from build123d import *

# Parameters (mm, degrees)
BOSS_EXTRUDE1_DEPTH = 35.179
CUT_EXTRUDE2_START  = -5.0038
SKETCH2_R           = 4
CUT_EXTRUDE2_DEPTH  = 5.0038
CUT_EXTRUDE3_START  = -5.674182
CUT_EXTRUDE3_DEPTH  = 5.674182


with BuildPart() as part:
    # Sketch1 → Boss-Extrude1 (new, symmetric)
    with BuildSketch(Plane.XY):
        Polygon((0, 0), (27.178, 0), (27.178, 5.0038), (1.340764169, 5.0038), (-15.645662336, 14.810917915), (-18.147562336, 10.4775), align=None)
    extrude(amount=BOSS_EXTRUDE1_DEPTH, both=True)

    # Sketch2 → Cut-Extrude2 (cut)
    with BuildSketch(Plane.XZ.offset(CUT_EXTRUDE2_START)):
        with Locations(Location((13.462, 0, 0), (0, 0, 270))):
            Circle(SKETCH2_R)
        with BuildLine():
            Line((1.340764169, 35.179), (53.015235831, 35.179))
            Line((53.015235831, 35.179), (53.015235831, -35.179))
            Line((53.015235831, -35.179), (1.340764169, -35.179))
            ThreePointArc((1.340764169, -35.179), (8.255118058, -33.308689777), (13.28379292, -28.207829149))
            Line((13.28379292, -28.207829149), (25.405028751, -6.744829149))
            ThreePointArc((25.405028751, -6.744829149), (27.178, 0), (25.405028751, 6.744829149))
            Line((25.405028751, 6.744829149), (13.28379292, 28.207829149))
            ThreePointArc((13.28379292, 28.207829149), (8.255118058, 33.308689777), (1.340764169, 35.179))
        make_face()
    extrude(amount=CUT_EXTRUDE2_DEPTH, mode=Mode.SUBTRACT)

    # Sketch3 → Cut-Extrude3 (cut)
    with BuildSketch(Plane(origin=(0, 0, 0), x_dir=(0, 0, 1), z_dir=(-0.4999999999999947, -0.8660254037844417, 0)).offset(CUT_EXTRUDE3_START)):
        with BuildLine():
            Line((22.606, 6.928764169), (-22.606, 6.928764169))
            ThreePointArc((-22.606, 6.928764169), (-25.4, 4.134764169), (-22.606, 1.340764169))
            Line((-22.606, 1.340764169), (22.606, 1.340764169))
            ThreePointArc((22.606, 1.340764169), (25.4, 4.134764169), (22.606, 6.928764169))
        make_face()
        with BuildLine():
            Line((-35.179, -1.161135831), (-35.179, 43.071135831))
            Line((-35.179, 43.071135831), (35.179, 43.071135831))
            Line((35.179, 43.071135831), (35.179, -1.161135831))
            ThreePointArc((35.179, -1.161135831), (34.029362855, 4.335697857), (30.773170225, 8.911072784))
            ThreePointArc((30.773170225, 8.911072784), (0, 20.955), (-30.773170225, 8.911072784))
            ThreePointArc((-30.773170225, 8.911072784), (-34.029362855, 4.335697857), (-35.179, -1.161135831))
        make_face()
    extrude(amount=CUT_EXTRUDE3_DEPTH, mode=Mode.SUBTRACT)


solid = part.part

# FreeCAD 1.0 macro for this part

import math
import FreeCAD as App
import Part
import Sketcher

V = App.Vector
Q = App.Units.Quantity

doc = App.newDocument("Part")
body = doc.addObject("PartDesign::Body", "Body")

# Sketch on XY plane
sketch1 = body.newObject("Sketcher::SketchObject", "Sketch")
sketch1.AttachmentSupport = (doc.getObject("XY_Plane"), [""])
sketch1.MapMode = "FlatFace"
sketch1.addGeometry(Part.LineSegment(V(0, 0, 0), V(27.178, 0, 0)), False)
sketch1.addGeometry(Part.LineSegment(V(27.178, 0, 0), V(27.178, 5.0038, 0)), False)
sketch1.addGeometry(Part.LineSegment(V(27.178, 5.0038, 0), V(1.340764, 5.0038, 0)), False)
sketch1.addGeometry(Part.LineSegment(V(1.340764, 5.0038, 0), V(-15.645662, 14.810918, 0)), False)
sketch1.addGeometry(Part.LineSegment(V(-15.645662, 14.810918, 0), V(-18.147562, 10.4775, 0)), False)
sketch1.addGeometry(Part.LineSegment(V(-18.147562, 10.4775, 0), V(0, 0, 0)), False)
sketch1.addConstraint(Sketcher.Constraint("Coincident", 0, 2, 1, 1))
sketch1.addConstraint(Sketcher.Constraint("Coincident", 1, 2, 2, 1))
sketch1.addConstraint(Sketcher.Constraint("Coincident", 2, 2, 3, 1))
sketch1.addConstraint(Sketcher.Constraint("Coincident", 3, 2, 4, 1))
sketch1.addConstraint(Sketcher.Constraint("Coincident", 4, 2, 5, 1))
sketch1.addConstraint(Sketcher.Constraint("Coincident", 5, 2, 0, 1))
sketch1.addConstraint(Sketcher.Constraint("Horizontal", 0))
sketch1.addConstraint(Sketcher.Constraint("Vertical", 1))
sketch1.addConstraint(Sketcher.Constraint("Horizontal", 2))
sketch1.addConstraint(Sketcher.Constraint("Coincident", 5, 2, -1, 1))
sketch1.addConstraint(Sketcher.Constraint("Perpendicular", 3, 4))
sketch1.addConstraint(Sketcher.Constraint("Perpendicular", 4, 5))
sketch1.addConstraint(Sketcher.Constraint("Angle", 3, Q("150 deg")))
sketch1.addConstraint(Sketcher.Constraint("DistanceX", 0, 1, 0, 2, Q("1.07 in")))
sketch1.addConstraint(Sketcher.Constraint("DistanceY", 1, 1, 1, 2, Q("0.197 in")))
sketch1.addConstraint(Sketcher.Constraint("Distance", 4, Q("0.197 in")))
sketch1.addConstraint(Sketcher.Constraint("Distance", 5, Q("0.825 in")))
pad1 = body.newObject("PartDesign::Pad", "Pad")
pad1.Profile = sketch1
pad1.Length = Q("2.77 in")
pad1.Midplane = True

# Sketch on XZ plane
sketch2 = body.newObject("Sketcher::SketchObject", "Sketch001")
sketch2.AttachmentSupport = (doc.getObject("XZ_Plane"), [""])
sketch2.MapMode = "FlatFace"
sketch2.AttachmentOffset = App.Placement(V(0, 0, -0.197 * 25.4), App.Rotation())
sketch2.addGeometry(Part.Circle(V(13.462, 0, 0), V(0, 0, 1), 4), False)
sketch2.addGeometry(Part.LineSegment(V(53.015236, 35.179, 0), V(1.340764, 35.179, 0)), False)
sketch2.addGeometry(Part.ArcOfCircle(Part.Circle(V(1.340764, 21.463, 0), V(0, 0, 1), 13.716), math.radians(29.455603), math.radians(90)), False)
sketch2.addGeometry(Part.LineSegment(V(13.283793, 28.207829, 0), V(25.405029, 6.744829, 0)), False)
sketch2.addGeometry(Part.ArcOfCircle(Part.Circle(V(13.462, 0, 0), V(0, 0, 1), 13.716), math.radians(-29.455603), math.radians(29.455603)), False)
sketch2.addGeometry(Part.LineSegment(V(25.405029, -6.744829, 0), V(13.283793, -28.207829, 0)), False)
sketch2.addGeometry(Part.ArcOfCircle(Part.Circle(V(1.340764, -21.463, 0), V(0, 0, 1), 13.716), math.radians(-90), math.radians(-29.455603)), False)
sketch2.addGeometry(Part.LineSegment(V(1.340764, -35.179, 0), V(53.015236, -35.179, 0)), False)
sketch2.addGeometry(Part.LineSegment(V(53.015236, -35.179, 0), V(53.015236, 35.179, 0)), False)
sketch2.addConstraint(Sketcher.Constraint("Tangent", 1, 2, 2, 2))
sketch2.addConstraint(Sketcher.Constraint("Tangent", 2, 1, 3, 1))
sketch2.addConstraint(Sketcher.Constraint("Tangent", 3, 2, 4, 2))
sketch2.addConstraint(Sketcher.Constraint("Tangent", 4, 1, 5, 1))
sketch2.addConstraint(Sketcher.Constraint("Tangent", 5, 2, 6, 2))
sketch2.addConstraint(Sketcher.Constraint("Tangent", 6, 1, 7, 1))
sketch2.addConstraint(Sketcher.Constraint("Coincident", 7, 2, 8, 1))
sketch2.addConstraint(Sketcher.Constraint("Coincident", 8, 2, 1, 1))
sketch2.addConstraint(Sketcher.Constraint("Horizontal", 1))
sketch2.addConstraint(Sketcher.Constraint("Horizontal", 7))
sketch2.addConstraint(Sketcher.Constraint("Vertical", 8))
sketch2.addConstraint(Sketcher.Constraint("Coincident", 4, 3, 0, 3))
sketch2.addConstraint(Sketcher.Constraint("Equal", 2, 4))
sketch2.addConstraint(Sketcher.Constraint("Equal", 4, 6))
sketch2.addConstraint(Sketcher.Constraint("Symmetric", 2, 3, 6, 3, -1))
sketch2.addConstraint(Sketcher.Constraint("PointOnObject", 0, 3, -1))
sketch2.addConstraint(Sketcher.Constraint("Radius", 2, Q("0.54 in")))
sketch2.addConstraint(Sketcher.Constraint("DistanceY", 8, 1, 8, 2, Q("2.77 in")))
sketch2.addConstraint(Sketcher.Constraint("Diameter", 0, 8.0))
sketch2.addConstraint(Sketcher.Constraint("DistanceX", -1, 1, 0, 3, Q("0.53 in")))
sketch2.addConstraint(Sketcher.Constraint("DistanceX", 1, 2, 1, 1, 51.674472))
sketch2.addConstraint(Sketcher.Constraint("DistanceY", -1, 1, 2, 1, 28.207829))
pocket1 = body.newObject("PartDesign::Pocket", "Pocket")
pocket1.Profile = sketch2
pocket1.Length = Q("0.197 in")
pocket1.Reversed = True

# Sketch on an angled plane
sketch3 = body.newObject("Sketcher::SketchObject", "Sketch002")
sketch3.Placement = App.Placement(V(2.837091, 4.913986, 0), App.Rotation(V(0, 0, 1), V(-0.866025404, 0.5, 0), V(-0.5, -0.866025404, 0), "ZXY"))
sketch3.addGeometry(Part.LineSegment(V(22.606, 6.928764, 0), V(-22.606, 6.928764, 0)), False)
sketch3.addGeometry(Part.ArcOfCircle(Part.Circle(V(-22.606, 4.134764, 0), V(0, 0, 1), 2.794), math.radians(90), math.radians(270)), False)
sketch3.addGeometry(Part.LineSegment(V(-22.606, 1.340764, 0), V(22.606, 1.340764, 0)), False)
sketch3.addGeometry(Part.ArcOfCircle(Part.Circle(V(22.606, 4.134764, 0), V(0, 0, 1), 2.794), math.radians(-90), math.radians(90)), False)
sketch3.addGeometry(Part.LineSegment(V(-35.179, 43.071136, 0), V(-35.179, -1.161136, 0)), False)
sketch3.addGeometry(Part.ArcOfCircle(Part.Circle(V(-21.463, -1.161136, 0), V(0, 0, 1), 13.716), math.radians(132.748516), math.radians(180)), False)
sketch3.addGeometry(Part.ArcOfCircle(Part.Circle(V(0, -24.380885, 0), V(0, 0, 1), 45.335885), math.radians(47.251484), math.radians(132.748516)), False)
sketch3.addGeometry(Part.ArcOfCircle(Part.Circle(V(21.463, -1.161136, 0), V(0, 0, 1), 13.716), math.radians(0), math.radians(47.251484)), False)
sketch3.addGeometry(Part.LineSegment(V(35.179, -1.161136, 0), V(35.179, 43.071136, 0)), False)
sketch3.addGeometry(Part.LineSegment(V(35.179, 43.071136, 0), V(-35.179, 43.071136, 0)), False)
sketch3.addConstraint(Sketcher.Constraint("Tangent", 0, 2, 1, 1))
sketch3.addConstraint(Sketcher.Constraint("Tangent", 1, 2, 2, 1))
sketch3.addConstraint(Sketcher.Constraint("Tangent", 2, 2, 3, 1))
sketch3.addConstraint(Sketcher.Constraint("Tangent", 3, 2, 0, 1))
sketch3.addConstraint(Sketcher.Constraint("Tangent", 4, 2, 5, 2))
sketch3.addConstraint(Sketcher.Constraint("Tangent", 5, 1, 6, 2))
sketch3.addConstraint(Sketcher.Constraint("Tangent", 6, 1, 7, 2))
sketch3.addConstraint(Sketcher.Constraint("Tangent", 7, 1, 8, 1))
sketch3.addConstraint(Sketcher.Constraint("Coincident", 8, 2, 9, 1))
sketch3.addConstraint(Sketcher.Constraint("Coincident", 9, 2, 4, 1))
sketch3.addConstraint(Sketcher.Constraint("Horizontal", 0))
sketch3.addConstraint(Sketcher.Constraint("Horizontal", 2))
sketch3.addConstraint(Sketcher.Constraint("Vertical", 4))
sketch3.addConstraint(Sketcher.Constraint("Vertical", 8))
sketch3.addConstraint(Sketcher.Constraint("Horizontal", 9))
sketch3.addConstraint(Sketcher.Constraint("Equal", 5, 7))
sketch3.addConstraint(Sketcher.Constraint("Symmetric", 5, 3, 7, 3, -2))
sketch3.addConstraint(Sketcher.Constraint("Radius", 1, Q("0.11 in")))
sketch3.addConstraint(Sketcher.Constraint("Radius", 5, Q("0.54 in")))
sketch3.addConstraint(Sketcher.Constraint("DistanceX", 0, 2, 0, 1, Q("1.78 in")))
sketch3.addConstraint(Sketcher.Constraint("DistanceX", 9, 2, 9, 1, Q("2.77 in")))
sketch3.addConstraint(Sketcher.Constraint("DistanceX", 1, 3, -1, 1, Q("0.89 in")))
sketch3.addConstraint(Sketcher.Constraint("Radius", 6, 45.335885))
sketch3.addConstraint(Sketcher.Constraint("DistanceY", 5, 3, 1, 3, Q("0.2085 in")))
sketch3.addConstraint(Sketcher.Constraint("DistanceY", 4, 2, 4, 1, 44.232272))
sketch3.addConstraint(Sketcher.Constraint("DistanceY", -1, 1, 1, 3, 4.134764))
pocket2 = body.newObject("PartDesign::Pocket", "Pocket001")
pocket2.Profile = sketch3
pocket2.Length = 5.674182
pocket2.Reversed = True

doc.recompute()
